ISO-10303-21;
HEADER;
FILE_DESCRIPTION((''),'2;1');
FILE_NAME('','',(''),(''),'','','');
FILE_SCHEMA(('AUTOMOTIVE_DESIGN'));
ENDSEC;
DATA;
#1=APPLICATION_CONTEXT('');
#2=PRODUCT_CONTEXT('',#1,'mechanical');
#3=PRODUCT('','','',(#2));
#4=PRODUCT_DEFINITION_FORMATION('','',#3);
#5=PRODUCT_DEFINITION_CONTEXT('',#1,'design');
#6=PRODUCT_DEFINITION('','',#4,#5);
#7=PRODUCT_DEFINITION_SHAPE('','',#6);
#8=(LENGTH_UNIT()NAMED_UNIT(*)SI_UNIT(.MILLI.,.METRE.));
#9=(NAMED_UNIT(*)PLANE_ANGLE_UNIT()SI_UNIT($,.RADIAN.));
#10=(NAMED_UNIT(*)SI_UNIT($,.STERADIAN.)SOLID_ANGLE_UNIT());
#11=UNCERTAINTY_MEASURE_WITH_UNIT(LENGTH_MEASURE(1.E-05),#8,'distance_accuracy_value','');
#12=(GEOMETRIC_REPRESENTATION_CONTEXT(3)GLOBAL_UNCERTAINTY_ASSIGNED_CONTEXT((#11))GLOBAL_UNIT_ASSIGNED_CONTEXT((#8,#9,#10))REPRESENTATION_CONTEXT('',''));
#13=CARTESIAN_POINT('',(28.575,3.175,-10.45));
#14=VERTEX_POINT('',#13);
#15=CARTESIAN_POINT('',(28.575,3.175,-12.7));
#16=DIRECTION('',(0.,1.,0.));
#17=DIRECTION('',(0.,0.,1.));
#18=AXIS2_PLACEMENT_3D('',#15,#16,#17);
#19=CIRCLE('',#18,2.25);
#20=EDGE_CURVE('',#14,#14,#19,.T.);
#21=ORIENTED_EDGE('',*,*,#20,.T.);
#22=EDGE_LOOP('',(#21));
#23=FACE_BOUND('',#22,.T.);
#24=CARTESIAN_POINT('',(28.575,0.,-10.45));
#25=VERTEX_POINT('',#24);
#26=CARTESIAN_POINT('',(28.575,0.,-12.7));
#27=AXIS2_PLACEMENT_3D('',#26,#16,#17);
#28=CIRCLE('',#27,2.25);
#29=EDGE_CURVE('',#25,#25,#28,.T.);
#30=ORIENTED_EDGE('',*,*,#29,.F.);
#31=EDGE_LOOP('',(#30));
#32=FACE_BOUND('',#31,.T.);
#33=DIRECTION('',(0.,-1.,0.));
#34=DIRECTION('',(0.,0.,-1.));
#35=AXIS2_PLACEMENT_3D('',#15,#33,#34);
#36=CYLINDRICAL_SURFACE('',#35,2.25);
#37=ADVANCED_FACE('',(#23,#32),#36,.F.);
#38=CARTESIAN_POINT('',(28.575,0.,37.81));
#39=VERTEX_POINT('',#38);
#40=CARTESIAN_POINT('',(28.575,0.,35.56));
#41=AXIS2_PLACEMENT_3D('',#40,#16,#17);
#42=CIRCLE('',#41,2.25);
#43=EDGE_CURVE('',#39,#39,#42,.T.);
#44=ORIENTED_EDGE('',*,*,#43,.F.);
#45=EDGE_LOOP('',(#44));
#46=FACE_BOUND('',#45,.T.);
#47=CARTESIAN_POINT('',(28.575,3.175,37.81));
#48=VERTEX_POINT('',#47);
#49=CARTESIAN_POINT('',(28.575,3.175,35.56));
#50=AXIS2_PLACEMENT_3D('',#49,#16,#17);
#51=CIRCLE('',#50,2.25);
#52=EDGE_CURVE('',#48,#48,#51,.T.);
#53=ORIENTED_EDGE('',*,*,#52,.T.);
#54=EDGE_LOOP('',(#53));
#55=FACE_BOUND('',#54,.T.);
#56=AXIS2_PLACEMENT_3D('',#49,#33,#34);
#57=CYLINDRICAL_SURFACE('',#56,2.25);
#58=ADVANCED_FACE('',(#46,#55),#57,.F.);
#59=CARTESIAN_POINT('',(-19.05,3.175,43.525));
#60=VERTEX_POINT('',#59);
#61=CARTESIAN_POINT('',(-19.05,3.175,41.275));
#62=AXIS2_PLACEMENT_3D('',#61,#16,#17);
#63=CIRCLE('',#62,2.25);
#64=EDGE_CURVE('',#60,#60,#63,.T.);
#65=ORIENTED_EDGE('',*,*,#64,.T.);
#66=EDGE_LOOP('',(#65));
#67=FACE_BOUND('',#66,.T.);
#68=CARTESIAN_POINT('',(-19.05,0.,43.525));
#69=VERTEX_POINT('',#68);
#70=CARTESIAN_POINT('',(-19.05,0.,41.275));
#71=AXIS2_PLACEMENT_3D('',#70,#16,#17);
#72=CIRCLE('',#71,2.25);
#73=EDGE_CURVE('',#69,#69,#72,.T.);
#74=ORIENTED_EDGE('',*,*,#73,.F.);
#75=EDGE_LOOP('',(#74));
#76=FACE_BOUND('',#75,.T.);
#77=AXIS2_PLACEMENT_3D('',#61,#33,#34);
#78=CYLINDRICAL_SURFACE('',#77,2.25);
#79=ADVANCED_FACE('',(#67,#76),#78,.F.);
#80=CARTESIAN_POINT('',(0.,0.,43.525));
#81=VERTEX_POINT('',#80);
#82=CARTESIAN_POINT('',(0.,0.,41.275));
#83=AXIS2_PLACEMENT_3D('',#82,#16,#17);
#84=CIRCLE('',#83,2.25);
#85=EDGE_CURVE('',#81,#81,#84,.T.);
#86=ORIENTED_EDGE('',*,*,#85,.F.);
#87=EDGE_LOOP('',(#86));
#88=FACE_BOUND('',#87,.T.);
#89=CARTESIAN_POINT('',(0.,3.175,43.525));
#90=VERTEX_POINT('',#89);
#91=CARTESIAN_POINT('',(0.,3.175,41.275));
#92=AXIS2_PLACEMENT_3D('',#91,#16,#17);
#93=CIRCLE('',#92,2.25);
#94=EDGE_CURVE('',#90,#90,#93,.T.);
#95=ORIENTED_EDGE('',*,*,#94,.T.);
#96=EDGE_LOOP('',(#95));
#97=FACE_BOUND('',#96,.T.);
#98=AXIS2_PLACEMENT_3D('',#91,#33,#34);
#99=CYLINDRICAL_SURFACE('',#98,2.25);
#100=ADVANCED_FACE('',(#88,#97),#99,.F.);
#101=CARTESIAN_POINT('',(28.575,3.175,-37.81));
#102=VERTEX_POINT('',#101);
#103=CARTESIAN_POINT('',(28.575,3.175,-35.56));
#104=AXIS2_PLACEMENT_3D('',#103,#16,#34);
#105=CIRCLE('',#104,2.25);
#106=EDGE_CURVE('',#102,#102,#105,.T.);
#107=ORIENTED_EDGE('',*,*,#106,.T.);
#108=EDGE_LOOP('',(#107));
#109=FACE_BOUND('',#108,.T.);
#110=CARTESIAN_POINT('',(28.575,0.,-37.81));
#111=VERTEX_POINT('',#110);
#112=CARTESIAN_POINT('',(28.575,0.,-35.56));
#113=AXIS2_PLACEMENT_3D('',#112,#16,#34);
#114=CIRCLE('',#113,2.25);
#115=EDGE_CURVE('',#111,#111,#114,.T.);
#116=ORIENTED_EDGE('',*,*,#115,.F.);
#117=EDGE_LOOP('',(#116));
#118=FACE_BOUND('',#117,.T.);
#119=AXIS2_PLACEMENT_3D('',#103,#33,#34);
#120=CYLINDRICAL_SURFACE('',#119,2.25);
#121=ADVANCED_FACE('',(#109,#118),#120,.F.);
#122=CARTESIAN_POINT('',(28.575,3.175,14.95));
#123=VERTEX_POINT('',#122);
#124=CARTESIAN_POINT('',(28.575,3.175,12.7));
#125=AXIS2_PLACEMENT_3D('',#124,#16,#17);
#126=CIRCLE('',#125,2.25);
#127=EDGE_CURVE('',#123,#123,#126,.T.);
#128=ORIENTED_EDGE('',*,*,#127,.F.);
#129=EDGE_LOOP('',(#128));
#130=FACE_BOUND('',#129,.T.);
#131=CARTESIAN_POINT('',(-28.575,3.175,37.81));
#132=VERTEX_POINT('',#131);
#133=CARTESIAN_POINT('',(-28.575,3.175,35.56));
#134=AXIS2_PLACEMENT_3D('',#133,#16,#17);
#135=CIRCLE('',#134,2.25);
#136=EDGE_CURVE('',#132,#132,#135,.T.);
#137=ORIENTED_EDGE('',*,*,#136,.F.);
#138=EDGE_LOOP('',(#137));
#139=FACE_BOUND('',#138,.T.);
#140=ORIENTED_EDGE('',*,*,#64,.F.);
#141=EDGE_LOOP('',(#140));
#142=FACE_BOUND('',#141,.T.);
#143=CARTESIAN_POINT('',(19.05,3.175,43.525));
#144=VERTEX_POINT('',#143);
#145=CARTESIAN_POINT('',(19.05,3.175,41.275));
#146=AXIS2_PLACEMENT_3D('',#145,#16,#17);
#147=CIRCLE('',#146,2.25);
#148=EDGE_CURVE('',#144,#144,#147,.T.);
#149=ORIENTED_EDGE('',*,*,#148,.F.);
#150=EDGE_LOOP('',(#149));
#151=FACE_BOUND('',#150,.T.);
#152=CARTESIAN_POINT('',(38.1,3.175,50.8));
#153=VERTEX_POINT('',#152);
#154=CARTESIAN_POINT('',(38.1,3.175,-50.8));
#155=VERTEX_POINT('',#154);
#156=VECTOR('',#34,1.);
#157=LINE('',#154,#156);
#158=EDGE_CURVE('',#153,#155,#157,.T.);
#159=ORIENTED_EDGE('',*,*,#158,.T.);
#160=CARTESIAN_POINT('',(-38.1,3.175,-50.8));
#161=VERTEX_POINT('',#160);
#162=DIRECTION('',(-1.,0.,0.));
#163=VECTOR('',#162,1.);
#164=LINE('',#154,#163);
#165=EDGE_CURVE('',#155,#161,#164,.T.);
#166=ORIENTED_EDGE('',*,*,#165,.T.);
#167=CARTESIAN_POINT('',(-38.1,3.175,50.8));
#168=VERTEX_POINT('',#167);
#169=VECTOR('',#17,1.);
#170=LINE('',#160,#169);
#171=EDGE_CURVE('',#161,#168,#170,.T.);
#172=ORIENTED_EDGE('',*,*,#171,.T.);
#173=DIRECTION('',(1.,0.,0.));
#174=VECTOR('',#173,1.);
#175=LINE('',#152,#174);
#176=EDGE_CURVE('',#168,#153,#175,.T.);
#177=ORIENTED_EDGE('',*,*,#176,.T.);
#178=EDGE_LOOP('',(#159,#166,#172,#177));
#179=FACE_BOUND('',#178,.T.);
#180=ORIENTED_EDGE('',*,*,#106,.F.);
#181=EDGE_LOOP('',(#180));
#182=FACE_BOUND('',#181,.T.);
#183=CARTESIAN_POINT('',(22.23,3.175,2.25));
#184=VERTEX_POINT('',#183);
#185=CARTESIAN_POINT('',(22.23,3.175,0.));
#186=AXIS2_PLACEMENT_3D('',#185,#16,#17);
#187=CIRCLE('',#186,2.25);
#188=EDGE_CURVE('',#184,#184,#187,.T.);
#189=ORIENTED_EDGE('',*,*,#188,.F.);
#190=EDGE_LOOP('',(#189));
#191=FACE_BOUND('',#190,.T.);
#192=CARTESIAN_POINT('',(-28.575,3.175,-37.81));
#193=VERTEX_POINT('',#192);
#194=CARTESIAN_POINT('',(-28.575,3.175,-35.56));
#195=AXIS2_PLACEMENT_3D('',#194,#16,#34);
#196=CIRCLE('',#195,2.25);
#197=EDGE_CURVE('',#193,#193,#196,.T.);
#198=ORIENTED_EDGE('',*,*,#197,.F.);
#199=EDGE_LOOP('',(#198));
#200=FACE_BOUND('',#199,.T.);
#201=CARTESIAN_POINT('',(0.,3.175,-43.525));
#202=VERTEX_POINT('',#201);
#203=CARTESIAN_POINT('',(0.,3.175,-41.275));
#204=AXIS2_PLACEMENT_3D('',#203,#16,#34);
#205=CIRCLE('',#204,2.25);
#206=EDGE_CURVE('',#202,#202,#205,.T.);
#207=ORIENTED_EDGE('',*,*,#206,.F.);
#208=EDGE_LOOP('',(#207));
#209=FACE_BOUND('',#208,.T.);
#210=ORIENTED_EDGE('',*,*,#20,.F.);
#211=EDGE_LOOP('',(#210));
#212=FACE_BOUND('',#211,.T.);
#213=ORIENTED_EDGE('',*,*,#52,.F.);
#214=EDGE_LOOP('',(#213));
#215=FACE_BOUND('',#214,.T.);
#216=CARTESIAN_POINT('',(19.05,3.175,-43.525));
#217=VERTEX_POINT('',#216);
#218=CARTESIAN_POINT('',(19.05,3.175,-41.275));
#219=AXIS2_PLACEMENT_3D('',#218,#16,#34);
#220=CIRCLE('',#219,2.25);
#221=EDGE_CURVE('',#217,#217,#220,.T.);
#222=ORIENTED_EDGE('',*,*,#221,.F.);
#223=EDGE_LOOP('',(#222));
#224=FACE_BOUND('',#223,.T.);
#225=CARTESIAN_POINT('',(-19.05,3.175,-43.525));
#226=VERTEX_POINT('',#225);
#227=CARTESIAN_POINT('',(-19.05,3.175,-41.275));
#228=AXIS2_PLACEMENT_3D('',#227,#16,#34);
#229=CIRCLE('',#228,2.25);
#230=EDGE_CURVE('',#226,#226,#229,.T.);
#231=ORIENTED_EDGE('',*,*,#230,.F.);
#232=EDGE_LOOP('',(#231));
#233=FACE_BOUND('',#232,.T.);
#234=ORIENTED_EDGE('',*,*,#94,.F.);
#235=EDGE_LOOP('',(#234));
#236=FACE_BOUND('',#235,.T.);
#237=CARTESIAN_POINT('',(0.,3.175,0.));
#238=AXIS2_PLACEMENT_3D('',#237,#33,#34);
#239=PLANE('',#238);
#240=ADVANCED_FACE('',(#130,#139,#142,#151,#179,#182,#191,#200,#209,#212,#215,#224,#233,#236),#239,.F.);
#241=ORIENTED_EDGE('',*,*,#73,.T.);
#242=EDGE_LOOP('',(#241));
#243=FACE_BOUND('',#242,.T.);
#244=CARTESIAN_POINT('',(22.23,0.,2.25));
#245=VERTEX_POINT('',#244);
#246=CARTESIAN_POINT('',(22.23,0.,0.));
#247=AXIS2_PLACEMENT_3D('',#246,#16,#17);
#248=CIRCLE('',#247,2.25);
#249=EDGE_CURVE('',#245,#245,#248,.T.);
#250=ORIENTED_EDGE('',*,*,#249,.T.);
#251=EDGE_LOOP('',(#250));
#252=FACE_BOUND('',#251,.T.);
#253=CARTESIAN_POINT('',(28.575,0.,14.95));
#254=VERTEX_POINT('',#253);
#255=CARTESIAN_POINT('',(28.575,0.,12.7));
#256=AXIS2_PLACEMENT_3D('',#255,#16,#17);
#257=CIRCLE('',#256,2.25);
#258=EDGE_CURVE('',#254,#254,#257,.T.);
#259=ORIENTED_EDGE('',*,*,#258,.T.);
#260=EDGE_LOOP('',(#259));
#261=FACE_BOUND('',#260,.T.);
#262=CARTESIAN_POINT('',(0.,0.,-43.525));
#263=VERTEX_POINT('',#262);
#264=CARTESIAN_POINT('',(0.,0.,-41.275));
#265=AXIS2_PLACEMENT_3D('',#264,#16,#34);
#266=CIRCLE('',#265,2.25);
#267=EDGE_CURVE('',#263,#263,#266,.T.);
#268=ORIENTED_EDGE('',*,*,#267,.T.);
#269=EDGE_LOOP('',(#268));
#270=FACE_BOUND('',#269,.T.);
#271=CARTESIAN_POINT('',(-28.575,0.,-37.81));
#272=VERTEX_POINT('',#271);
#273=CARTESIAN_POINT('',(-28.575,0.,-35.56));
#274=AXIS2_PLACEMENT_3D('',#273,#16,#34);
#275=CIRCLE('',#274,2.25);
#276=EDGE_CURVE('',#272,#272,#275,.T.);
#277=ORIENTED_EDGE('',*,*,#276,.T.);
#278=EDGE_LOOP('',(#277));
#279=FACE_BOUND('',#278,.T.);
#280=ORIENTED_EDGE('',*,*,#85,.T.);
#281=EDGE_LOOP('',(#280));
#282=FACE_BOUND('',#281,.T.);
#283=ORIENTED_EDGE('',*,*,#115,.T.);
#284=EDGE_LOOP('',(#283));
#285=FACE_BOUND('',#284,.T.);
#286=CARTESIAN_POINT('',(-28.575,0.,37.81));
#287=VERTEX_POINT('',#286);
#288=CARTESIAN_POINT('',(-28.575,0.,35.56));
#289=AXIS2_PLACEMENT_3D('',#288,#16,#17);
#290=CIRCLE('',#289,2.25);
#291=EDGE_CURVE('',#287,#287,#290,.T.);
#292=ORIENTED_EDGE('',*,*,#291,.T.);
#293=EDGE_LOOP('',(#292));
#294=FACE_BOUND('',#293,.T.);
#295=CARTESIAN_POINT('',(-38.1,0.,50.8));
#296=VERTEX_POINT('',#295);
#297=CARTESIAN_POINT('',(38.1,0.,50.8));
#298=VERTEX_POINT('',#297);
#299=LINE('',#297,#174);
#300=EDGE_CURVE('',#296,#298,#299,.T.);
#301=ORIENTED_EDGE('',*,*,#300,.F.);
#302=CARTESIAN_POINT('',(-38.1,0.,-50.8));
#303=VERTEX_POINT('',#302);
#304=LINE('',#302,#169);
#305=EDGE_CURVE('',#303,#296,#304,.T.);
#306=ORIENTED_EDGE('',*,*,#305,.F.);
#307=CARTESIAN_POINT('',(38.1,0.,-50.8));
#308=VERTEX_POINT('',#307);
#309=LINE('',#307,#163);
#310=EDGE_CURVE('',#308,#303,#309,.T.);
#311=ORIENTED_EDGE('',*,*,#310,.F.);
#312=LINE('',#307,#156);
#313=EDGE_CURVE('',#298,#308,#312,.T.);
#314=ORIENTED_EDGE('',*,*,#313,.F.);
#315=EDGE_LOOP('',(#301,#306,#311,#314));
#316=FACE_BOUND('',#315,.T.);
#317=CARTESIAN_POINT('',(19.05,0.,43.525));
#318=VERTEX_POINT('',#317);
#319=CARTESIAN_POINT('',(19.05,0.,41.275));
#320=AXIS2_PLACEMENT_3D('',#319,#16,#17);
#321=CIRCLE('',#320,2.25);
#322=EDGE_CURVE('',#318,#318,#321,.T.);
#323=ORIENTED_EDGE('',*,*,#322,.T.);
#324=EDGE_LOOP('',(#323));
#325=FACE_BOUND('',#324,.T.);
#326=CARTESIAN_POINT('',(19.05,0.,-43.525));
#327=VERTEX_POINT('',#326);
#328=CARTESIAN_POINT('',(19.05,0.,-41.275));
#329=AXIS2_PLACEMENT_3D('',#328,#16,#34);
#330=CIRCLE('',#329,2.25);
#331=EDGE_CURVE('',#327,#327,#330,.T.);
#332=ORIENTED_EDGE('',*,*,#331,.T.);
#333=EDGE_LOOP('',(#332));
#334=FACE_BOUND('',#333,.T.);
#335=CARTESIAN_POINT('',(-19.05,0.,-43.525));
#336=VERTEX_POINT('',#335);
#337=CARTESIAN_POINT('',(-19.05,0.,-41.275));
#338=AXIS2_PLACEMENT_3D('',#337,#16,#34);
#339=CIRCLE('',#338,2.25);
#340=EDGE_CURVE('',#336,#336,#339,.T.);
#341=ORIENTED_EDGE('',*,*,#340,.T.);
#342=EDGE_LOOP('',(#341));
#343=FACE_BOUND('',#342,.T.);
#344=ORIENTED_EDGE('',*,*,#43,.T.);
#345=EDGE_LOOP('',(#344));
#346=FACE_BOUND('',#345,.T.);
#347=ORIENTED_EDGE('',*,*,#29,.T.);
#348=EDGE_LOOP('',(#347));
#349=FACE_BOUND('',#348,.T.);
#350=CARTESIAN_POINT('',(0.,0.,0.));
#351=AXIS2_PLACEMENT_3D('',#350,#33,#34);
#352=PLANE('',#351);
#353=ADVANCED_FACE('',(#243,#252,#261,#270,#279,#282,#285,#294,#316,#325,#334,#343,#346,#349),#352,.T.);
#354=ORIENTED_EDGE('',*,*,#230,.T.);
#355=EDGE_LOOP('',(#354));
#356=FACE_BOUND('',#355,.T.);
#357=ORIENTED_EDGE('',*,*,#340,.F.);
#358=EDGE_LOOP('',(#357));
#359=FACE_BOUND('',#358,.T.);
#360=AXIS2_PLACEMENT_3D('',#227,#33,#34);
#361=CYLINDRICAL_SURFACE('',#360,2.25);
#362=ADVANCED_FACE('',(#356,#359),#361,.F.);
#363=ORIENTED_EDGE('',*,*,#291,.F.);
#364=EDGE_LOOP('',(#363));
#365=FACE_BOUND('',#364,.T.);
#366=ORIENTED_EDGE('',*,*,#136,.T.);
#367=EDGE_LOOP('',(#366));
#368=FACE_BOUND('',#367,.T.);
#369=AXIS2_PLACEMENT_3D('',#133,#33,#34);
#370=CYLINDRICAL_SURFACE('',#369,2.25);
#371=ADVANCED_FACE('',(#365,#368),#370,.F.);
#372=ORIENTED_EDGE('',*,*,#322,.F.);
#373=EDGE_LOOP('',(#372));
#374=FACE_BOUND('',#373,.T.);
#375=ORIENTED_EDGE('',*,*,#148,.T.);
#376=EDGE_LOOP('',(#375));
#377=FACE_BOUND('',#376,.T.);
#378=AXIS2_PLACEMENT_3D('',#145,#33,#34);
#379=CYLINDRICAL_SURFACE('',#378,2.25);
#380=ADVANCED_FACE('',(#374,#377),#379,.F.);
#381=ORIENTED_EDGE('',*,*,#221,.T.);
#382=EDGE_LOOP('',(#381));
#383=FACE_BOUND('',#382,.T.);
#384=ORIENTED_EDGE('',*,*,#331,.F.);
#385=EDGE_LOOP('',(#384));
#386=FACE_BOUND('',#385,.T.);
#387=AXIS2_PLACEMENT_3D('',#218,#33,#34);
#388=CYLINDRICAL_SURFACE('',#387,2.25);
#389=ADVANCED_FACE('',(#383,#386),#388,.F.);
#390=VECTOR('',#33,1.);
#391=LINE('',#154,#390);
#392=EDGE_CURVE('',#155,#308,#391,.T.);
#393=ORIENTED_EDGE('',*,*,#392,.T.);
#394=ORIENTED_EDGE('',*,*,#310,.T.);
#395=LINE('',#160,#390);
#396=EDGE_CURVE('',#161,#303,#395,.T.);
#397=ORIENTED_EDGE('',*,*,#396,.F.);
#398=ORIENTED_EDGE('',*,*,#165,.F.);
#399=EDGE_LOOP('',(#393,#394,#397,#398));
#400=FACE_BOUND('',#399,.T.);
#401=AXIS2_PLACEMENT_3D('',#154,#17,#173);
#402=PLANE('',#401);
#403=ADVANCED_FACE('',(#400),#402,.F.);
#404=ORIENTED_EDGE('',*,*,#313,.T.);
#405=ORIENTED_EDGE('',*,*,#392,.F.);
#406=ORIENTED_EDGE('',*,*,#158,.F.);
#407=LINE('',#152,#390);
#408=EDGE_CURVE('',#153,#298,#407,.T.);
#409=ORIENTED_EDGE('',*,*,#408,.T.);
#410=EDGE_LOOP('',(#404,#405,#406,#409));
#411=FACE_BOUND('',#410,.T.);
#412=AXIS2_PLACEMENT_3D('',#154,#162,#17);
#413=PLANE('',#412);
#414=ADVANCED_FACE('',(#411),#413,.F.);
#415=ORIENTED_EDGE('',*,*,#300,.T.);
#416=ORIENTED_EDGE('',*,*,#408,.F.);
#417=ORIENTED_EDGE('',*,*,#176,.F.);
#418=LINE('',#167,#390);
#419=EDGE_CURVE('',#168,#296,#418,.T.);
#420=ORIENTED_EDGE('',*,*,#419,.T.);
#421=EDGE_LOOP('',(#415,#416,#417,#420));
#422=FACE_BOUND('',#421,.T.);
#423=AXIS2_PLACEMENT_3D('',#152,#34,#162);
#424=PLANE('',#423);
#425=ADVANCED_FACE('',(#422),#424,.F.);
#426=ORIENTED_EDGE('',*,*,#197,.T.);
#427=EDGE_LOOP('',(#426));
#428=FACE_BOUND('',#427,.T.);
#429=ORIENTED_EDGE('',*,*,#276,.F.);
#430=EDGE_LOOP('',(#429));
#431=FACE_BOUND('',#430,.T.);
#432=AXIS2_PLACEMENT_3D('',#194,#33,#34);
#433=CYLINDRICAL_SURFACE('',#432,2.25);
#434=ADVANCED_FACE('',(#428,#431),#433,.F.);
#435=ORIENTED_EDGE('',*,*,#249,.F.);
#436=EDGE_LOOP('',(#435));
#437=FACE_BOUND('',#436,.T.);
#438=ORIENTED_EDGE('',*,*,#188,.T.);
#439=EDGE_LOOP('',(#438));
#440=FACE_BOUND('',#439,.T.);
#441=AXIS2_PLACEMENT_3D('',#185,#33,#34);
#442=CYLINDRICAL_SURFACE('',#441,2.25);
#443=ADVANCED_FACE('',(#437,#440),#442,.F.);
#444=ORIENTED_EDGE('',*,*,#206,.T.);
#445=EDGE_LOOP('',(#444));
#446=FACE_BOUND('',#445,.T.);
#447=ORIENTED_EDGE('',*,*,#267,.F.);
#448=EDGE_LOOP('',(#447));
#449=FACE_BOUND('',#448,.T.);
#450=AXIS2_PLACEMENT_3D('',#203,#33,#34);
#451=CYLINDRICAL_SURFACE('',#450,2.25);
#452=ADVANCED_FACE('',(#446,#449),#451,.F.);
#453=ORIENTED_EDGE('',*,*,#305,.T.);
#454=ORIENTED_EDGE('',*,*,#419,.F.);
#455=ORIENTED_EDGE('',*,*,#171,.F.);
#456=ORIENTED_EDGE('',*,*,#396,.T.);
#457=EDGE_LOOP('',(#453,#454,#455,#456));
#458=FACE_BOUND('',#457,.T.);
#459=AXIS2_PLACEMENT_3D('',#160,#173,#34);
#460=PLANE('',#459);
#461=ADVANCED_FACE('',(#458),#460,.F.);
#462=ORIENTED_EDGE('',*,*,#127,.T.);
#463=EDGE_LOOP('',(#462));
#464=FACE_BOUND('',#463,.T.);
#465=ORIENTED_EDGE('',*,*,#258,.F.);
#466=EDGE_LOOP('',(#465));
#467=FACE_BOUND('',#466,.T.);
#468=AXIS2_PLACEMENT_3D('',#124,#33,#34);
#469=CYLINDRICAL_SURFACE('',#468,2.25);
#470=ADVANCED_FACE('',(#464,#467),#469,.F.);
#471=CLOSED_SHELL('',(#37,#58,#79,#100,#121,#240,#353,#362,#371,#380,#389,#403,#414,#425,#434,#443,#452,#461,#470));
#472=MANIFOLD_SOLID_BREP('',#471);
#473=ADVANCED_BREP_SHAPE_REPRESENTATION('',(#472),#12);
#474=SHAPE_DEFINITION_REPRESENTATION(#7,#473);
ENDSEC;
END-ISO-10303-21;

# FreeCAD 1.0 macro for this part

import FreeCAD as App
import Part
import Sketcher
from FreeCAD import Vector
Q = App.Units.Quantity


def add_polygon(sketch, points):
    """Adds a closed chain of lines whose ends are joined by coincident constraints."""
    first, n = sketch.GeometryCount, len(points)
    for a, b in zip(points, points[1:] + points[:1]):
        sketch.addGeometry(Part.LineSegment(App.Vector(*a, 0), App.Vector(*b, 0)), False)
    for i in range(n):
        sketch.addConstraint(Sketcher.Constraint("Coincident", first + i, 2, first + (i + 1) % n, 1))

doc = App.newDocument("Part")
body = doc.addObject("PartDesign::Body", "Body")

sketch1 = body.newObject("Sketcher::SketchObject", "Sketch")
sketch1.AttachmentSupport = (doc.getObject("XZ_Plane"), [""])
sketch1.MapMode = "FlatFace"
add_polygon(sketch1, [(-38.1, -50.8), (-38.1, 50.8), (38.1, 50.8), (38.1, -50.8)])
sketch1.addGeometry(Part.Circle(Vector(-28.6, 35.6, 0), Vector(0, 0, 1), 2.2), False)
sketch1.addGeometry(Part.Circle(Vector(-19.1, 41.3, 0), Vector(0, 0, 1), 2.2), False)
sketch1.addGeometry(Part.Circle(Vector(0, 41.3, 0), Vector(0, 0, 1), 2.2), False)
sketch1.addGeometry(Part.Circle(Vector(19.1, 41.3, 0), Vector(0, 0, 1), 2.2), False)
sketch1.addGeometry(Part.Circle(Vector(28.6, 35.6, 0), Vector(0, 0, 1), 2.2), False)
sketch1.addGeometry(Part.Circle(Vector(28.6, 12.7, 0), Vector(0, 0, 1), 2.2), False)
sketch1.addGeometry(Part.Circle(Vector(-28.6, -35.6, 0), Vector(0, 0, 1), 2.2), False)
sketch1.addGeometry(Part.Circle(Vector(-19.1, -41.3, 0), Vector(0, 0, 1), 2.2), False)
sketch1.addGeometry(Part.Circle(Vector(0, -41.3, 0), Vector(0, 0, 1), 2.2), False)
sketch1.addGeometry(Part.Circle(Vector(22.2, 0, 0), Vector(0, 0, 1), 2.2), False)
sketch1.addGeometry(Part.Circle(Vector(28.6, -12.7, 0), Vector(0, 0, 1), 2.2), False)
sketch1.addGeometry(Part.Circle(Vector(19.1, -41.3, 0), Vector(0, 0, 1), 2.2), False)
sketch1.addGeometry(Part.Circle(Vector(28.6, -35.6, 0), Vector(0, 0, 1), 2.2), False)
sketch1.addConstraint(Sketcher.Constraint("Vertical", 0))
sketch1.addConstraint(Sketcher.Constraint("Horizontal", 1))
sketch1.addConstraint(Sketcher.Constraint("Vertical", 2))
sketch1.addConstraint(Sketcher.Constraint("Horizontal", 3))
sketch1.addConstraint(Sketcher.Constraint("Equal", 4, 5))
sketch1.addConstraint(Sketcher.Constraint("Equal", 5, 6))
sketch1.addConstraint(Sketcher.Constraint("Equal", 6, 7))
sketch1.addConstraint(Sketcher.Constraint("Equal", 7, 8))
sketch1.addConstraint(Sketcher.Constraint("Equal", 8, 9))
sketch1.addConstraint(Sketcher.Constraint("Equal", 9, 10))
sketch1.addConstraint(Sketcher.Constraint("Equal", 10, 11))
sketch1.addConstraint(Sketcher.Constraint("Equal", 11, 12))
sketch1.addConstraint(Sketcher.Constraint("Equal", 12, 13))
sketch1.addConstraint(Sketcher.Constraint("Equal", 13, 14))
sketch1.addConstraint(Sketcher.Constraint("Equal", 14, 15))
sketch1.addConstraint(Sketcher.Constraint("Equal", 15, 16))
sketch1.addConstraint(Sketcher.Constraint("Symmetric", 8, 3, 10, 3, -1, 1))
sketch1.addConstraint(Sketcher.Constraint("Symmetric", 7, 3, 11, 3, -1, 1))
sketch1.addConstraint(Sketcher.Constraint("Symmetric", 6, 3, 12, 3, -1, 1))
sketch1.addConstraint(Sketcher.Constraint("Symmetric", 5, 3, 15, 3, -1, 1))
sketch1.addConstraint(Sketcher.Constraint("Symmetric", 4, 3, 16, 3, -1, 1))
sketch1.addConstraint(Sketcher.Constraint("Symmetric", 0, 2, 2, 2, -1, 1))
sketch1.addConstraint(Sketcher.Constraint("Symmetric", 5, 3, 7, 3, -2))
sketch1.addConstraint(Sketcher.Constraint("Symmetric", 4, 3, 8, 3, -2))
sketch1.addConstraint(Sketcher.Constraint("Symmetric", 9, 3, 14, 3, -1))
sketch1.addConstraint(Sketcher.Constraint("PointOnObject", 6, 3, -2))
sketch1.addConstraint(Sketcher.Constraint("PointOnObject", 13, 3, -1))
sketch1.addConstraint(Sketcher.Constraint("Horizontal", 5, 3, 6, 3))
sketch1.addConstraint(Sketcher.Constraint("Vertical", 8, 3, 9, 3))
sketch1.addConstraint(Sketcher.Constraint("DistanceX", 1, 1, 1, 2, Q("3 in")))
sketch1.addConstraint(Sketcher.Constraint("DistanceY", 0, 1, 0, 2, Q("4 in")))
sketch1.addConstraint(Sketcher.Constraint("DistanceY", 14, 3, 9, 3, Q("1 in")))
sketch1.addConstraint(Sketcher.Constraint("DistanceY", -1, 1, 4, 3, Q("1.4 in")))
sketch1.addConstraint(Sketcher.Constraint("DistanceX", 5, 3, 7, 3, Q("1.5 in")))
sketch1.addConstraint(Sketcher.Constraint("Diameter", 4, Q("4.5 mm")))
sketch1.addConstraint(Sketcher.Constraint("DistanceX", 4, 3, 8, 3, Q("2.25 in")))
sketch1.addConstraint(Sketcher.Constraint("DistanceY", 11, 3, 5, 3, Q("3.25 in")))
sketch1.addConstraint(Sketcher.Constraint("DistanceX", -1, 1, 13, 3, Q("22.23 mm")))
pad1 = body.newObject("PartDesign::Pad", "Pad")
pad1.Profile = sketch1
pad1.Length = Q("0.125 in")
pad1.Reversed = True

doc.recompute()
